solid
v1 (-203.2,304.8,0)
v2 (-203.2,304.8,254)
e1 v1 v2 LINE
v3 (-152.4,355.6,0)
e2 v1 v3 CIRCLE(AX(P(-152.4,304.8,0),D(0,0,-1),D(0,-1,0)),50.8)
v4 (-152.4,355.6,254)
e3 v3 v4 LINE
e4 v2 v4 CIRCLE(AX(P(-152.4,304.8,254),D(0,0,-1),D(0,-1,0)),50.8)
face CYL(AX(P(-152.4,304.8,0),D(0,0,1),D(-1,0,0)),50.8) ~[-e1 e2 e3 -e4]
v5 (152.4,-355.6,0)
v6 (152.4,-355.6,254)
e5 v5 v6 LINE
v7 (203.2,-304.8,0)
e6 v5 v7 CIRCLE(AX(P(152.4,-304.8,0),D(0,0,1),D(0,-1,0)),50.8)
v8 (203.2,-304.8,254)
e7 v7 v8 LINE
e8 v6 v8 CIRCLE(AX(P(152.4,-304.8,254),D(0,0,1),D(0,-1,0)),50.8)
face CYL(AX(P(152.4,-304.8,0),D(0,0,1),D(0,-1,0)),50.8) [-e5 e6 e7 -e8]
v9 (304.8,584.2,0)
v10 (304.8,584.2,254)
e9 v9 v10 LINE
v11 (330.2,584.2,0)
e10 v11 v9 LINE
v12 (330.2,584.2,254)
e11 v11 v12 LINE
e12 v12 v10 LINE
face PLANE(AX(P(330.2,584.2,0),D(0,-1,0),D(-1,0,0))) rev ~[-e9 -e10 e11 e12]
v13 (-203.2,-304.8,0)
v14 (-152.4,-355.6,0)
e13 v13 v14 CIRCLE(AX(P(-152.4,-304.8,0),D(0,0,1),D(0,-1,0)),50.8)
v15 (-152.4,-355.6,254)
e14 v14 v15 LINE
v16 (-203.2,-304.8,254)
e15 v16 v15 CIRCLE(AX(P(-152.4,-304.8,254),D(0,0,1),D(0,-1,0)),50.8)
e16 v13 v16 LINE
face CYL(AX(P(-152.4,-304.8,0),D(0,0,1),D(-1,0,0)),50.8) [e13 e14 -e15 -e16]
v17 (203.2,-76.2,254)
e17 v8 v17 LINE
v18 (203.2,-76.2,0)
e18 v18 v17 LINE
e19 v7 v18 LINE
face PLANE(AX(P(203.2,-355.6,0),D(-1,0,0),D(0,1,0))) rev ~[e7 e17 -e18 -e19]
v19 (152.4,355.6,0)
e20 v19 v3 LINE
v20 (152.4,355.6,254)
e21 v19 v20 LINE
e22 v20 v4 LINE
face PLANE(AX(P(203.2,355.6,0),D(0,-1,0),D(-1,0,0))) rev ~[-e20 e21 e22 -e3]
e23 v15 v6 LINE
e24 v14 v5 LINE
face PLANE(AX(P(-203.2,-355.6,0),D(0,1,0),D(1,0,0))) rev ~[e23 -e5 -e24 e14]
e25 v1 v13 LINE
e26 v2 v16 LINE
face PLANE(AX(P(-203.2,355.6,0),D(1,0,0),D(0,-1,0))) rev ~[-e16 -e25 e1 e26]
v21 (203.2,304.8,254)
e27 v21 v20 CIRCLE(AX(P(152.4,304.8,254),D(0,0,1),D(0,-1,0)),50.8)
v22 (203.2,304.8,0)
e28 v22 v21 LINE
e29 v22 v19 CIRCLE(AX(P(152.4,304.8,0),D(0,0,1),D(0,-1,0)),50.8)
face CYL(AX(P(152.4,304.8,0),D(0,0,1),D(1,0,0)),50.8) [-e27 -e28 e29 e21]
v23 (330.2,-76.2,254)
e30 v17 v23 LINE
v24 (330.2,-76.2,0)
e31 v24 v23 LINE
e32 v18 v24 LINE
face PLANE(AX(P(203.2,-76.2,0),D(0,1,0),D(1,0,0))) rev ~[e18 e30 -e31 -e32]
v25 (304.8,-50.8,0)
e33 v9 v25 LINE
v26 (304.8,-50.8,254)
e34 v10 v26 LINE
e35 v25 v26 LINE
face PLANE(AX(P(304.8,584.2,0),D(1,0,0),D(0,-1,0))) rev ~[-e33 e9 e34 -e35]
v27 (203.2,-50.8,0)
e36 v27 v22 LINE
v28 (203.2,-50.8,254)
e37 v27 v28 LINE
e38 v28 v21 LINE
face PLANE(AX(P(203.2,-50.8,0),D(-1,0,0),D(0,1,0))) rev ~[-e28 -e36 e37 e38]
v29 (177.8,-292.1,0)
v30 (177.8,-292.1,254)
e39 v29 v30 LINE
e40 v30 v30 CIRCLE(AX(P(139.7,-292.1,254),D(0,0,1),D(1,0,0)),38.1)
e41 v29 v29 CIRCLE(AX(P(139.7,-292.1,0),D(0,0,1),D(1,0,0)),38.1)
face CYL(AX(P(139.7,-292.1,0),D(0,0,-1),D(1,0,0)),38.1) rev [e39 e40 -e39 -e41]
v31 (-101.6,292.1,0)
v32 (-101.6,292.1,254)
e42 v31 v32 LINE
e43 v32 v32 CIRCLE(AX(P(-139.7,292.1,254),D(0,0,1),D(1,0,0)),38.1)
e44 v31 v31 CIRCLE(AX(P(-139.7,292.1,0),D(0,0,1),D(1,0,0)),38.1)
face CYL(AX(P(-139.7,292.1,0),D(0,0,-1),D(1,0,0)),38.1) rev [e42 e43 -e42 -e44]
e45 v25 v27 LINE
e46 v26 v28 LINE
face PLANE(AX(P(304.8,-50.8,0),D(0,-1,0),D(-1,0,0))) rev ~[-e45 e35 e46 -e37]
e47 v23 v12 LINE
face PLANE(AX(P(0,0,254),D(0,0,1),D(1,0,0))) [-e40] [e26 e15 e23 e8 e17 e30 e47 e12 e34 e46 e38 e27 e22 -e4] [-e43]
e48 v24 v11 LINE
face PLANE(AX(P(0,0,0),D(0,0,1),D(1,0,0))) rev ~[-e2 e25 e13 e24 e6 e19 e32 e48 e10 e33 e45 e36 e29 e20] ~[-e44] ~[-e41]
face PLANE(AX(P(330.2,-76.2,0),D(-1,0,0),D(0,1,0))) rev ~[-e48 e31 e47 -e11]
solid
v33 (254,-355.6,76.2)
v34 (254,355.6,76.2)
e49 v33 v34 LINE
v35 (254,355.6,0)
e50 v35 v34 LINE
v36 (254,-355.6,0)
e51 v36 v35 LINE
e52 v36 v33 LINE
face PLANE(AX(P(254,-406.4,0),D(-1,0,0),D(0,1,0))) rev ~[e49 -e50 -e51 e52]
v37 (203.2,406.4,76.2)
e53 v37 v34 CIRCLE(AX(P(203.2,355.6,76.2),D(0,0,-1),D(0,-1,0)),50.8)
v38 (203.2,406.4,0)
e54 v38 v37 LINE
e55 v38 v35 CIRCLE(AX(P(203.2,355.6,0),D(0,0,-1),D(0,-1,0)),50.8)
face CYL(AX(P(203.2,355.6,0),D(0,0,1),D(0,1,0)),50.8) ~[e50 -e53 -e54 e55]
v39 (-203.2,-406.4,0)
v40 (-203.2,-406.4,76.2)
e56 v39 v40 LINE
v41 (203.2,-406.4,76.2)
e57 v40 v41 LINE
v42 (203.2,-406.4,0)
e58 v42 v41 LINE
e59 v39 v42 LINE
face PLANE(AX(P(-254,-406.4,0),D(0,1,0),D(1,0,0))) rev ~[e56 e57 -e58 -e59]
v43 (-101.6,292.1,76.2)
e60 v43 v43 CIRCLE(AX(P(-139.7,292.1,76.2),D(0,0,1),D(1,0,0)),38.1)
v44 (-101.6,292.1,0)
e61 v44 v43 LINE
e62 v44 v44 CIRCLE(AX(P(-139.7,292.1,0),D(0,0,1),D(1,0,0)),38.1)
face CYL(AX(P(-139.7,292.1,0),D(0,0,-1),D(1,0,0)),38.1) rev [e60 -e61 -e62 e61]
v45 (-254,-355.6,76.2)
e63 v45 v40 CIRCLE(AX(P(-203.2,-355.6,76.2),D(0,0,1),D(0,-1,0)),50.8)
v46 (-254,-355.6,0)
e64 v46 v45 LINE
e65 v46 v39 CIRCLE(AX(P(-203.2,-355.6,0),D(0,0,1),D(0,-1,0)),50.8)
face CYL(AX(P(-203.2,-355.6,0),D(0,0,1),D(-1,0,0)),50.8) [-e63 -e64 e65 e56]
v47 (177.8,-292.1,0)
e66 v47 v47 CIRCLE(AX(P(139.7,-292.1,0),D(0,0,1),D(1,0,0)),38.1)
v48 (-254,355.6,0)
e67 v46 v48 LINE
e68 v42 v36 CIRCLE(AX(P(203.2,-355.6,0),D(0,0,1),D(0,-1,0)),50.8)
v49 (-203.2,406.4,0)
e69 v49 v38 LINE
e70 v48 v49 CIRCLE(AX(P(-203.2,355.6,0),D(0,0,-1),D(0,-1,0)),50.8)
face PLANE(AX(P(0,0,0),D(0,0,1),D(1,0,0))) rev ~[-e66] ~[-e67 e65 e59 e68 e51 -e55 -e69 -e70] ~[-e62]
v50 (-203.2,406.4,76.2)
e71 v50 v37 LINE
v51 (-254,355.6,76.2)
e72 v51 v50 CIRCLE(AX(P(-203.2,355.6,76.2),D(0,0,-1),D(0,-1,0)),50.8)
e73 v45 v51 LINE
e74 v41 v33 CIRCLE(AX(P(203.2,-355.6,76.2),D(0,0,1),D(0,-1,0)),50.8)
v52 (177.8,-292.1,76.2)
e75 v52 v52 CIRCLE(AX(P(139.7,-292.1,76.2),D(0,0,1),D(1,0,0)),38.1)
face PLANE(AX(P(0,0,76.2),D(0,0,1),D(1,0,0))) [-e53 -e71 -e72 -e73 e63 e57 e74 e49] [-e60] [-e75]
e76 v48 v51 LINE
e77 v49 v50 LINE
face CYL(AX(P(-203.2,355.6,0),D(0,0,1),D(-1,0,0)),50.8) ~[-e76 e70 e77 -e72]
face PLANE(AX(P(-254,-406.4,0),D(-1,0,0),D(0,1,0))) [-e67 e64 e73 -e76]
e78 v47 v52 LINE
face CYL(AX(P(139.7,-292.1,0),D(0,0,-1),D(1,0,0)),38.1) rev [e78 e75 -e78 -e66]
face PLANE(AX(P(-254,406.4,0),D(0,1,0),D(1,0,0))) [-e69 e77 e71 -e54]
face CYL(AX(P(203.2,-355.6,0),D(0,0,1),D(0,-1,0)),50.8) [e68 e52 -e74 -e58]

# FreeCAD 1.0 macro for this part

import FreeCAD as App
import Part
import Sketcher
Q = App.Units.Quantity


def edges_at(feature, points):
    """Names of the edges that pass closest to the given points."""
    edges = feature.Shape.Edges
    near = lambda p: min(range(len(edges)), key=lambda i: edges[i].distToShape(Part.Vertex(*p))[0])
    return sorted({f"Edge{near(p) + 1}" for p in points})

doc = App.newDocument("Part")
body = doc.addObject("PartDesign::Body", "Body")

# Sketch on XY plane
sketch1 = doc.addObject("Sketcher::SketchObject", "Sketch")
body.addObject(sketch1)
sketch1.AttachmentSupport = (doc.XY_Plane, [""])
sketch1.MapMode = "FlatFace"
sketch1.addGeometry([
    Part.LineSegment(App.Vector(-203, 356, 0), App.Vector(-203, -356, 0)),  # 0
    Part.LineSegment(App.Vector(-203, -356, 0), App.Vector(203, -356, 0)),  # 1
    Part.LineSegment(App.Vector(203, -356, 0), App.Vector(203, -76, 0)),  # 2
    Part.LineSegment(App.Vector(203, -76, 0), App.Vector(330, -76, 0)),  # 3
    Part.LineSegment(App.Vector(330, -76, 0), App.Vector(330, 584, 0)),  # 4
    Part.LineSegment(App.Vector(330, 584, 0), App.Vector(305, 584, 0)),  # 5
    Part.LineSegment(App.Vector(305, 584, 0), App.Vector(305, -51, 0)),  # 6
    Part.LineSegment(App.Vector(305, -51, 0), App.Vector(203, -51, 0)),  # 7
    Part.LineSegment(App.Vector(203, -51, 0), App.Vector(203, 356, 0)),  # 8
    Part.LineSegment(App.Vector(203, 356, 0), App.Vector(-203, 356, 0)),  # 9
    Part.Circle(App.Vector(140, -292, 0), App.Vector(0, 0, 1), 38),  # 10
    Part.Circle(App.Vector(-140, 292, 0), App.Vector(0, 0, 1), 38),  # 11
], False)
sketch1.addConstraint([
    Sketcher.Constraint("Coincident", 0, 2, 1, 1),
    Sketcher.Constraint("Coincident", 1, 2, 2, 1),
    Sketcher.Constraint("Coincident", 2, 2, 3, 1),
    Sketcher.Constraint("Coincident", 3, 2, 4, 1),
    Sketcher.Constraint("Coincident", 4, 2, 5, 1),
    Sketcher.Constraint("Coincident", 5, 2, 6, 1),
    Sketcher.Constraint("Coincident", 6, 2, 7, 1),
    Sketcher.Constraint("Coincident", 7, 2, 8, 1),
    Sketcher.Constraint("Coincident", 8, 2, 9, 1),
    Sketcher.Constraint("Coincident", 9, 2, 0, 1),
    Sketcher.Constraint("Vertical", 0),
    Sketcher.Constraint("Horizontal", 1),
    Sketcher.Constraint("Vertical", 2),
    Sketcher.Constraint("Horizontal", 3),
    Sketcher.Constraint("Vertical", 4),
    Sketcher.Constraint("Horizontal", 5),
    Sketcher.Constraint("Vertical", 6),
    Sketcher.Constraint("Horizontal", 7),
    Sketcher.Constraint("Vertical", 8),
    Sketcher.Constraint("Horizontal", 9),
    Sketcher.Constraint("Equal", 10, 11),
    Sketcher.Constraint("Symmetric", 10, 3, 11, 3, -1, 1),
    Sketcher.Constraint("Symmetric", 0, 2, 8, 2, -1, 1),
    Sketcher.Constraint("Vertical", 2, 2, 7, 2),
    Sketcher.Constraint("Equal", 9, 8),
    Sketcher.Constraint("Diameter", 10, Q("3 in")),
    Sketcher.Constraint("DistanceX", 1, 1, 1, 2, Q("16 in")),
    Sketcher.Constraint("DistanceX", 3, 1, 3, 2, Q("5 in")),
    Sketcher.Constraint("DistanceX", 5, 2, 5, 1, Q("1 in")),
    Sketcher.Constraint("DistanceY", 0, 2, 0, 1, Q("28 in")),
    Sketcher.Constraint("DistanceY", 2, 1, 2, 2, Q("11 in")),
    Sketcher.Constraint("DistanceY", 4, 1, 4, 2, Q("26 in")),
    Sketcher.Constraint("DistanceX", 11, 3, 10, 3, Q("11 in")),
    Sketcher.Constraint("DistanceY", 10, 3, 11, 3, Q("23 in")),
])
pad1 = doc.addObject("PartDesign::Pad", "Pad")
body.addObject(pad1)
pad1.Profile = sketch1
pad1.Length = Q("10 in")
doc.recompute()

fillet = doc.addObject("PartDesign::Fillet", "Fillet")
body.addObject(fillet)
fillet.Base = (pad1, edges_at(pad1, [
    (-203.2, 355.6, 127),
    (203.2, 355.6, 127),
    (-203.2, -355.6, 127),
    (203.2, -355.6, 127),
]))
fillet.Radius = Q("2 in")
body2 = doc.addObject("PartDesign::Body", "Body001")

# Sketch on XY plane
sketch2 = doc.addObject("Sketcher::SketchObject", "Sketch001")
body2.addObject(sketch2)
sketch2.AttachmentSupport = (doc.getObject("XY_Plane001"), [""])
sketch2.MapMode = "FlatFace"
sketch2.addGeometry([
    Part.LineSegment(App.Vector(-254, 406, 0), App.Vector(-254, -406, 0)),  # 0
    Part.LineSegment(App.Vector(-254, -406, 0), App.Vector(254, -406, 0)),  # 1
    Part.LineSegment(App.Vector(254, -406, 0), App.Vector(254, 406, 0)),  # 2
    Part.LineSegment(App.Vector(254, 406, 0), App.Vector(-254, 406, 0)),  # 3
    Part.Circle(App.Vector(140, -292, 0), App.Vector(0, 0, 1), 38),  # 4
    Part.Circle(App.Vector(-140, 292, 0), App.Vector(0, 0, 1), 38),  # 5
], False)
sketch2.addConstraint([
    Sketcher.Constraint("Coincident", 0, 2, 1, 1),
    Sketcher.Constraint("Coincident", 1, 2, 2, 1),
    Sketcher.Constraint("Coincident", 2, 2, 3, 1),
    Sketcher.Constraint("Coincident", 3, 2, 0, 1),
    Sketcher.Constraint("Vertical", 0),
    Sketcher.Constraint("Horizontal", 1),
    Sketcher.Constraint("Vertical", 2),
    Sketcher.Constraint("Horizontal", 3),
    Sketcher.Constraint("Equal", 4, 5),
    Sketcher.Constraint("Symmetric", 4, 3, 5, 3, -1, 1),
    Sketcher.Constraint("Symmetric", 0, 2, 2, 2, -1, 1),
    Sketcher.Constraint("Diameter", 4, Q("3 in")),
    Sketcher.Constraint("DistanceX", 1, 1, 1, 2, Q("20 in")),
    Sketcher.Constraint("DistanceY", 0, 2, 0, 1, Q("32 in")),
    Sketcher.Constraint("DistanceX", 5, 3, 4, 3, Q("11 in")),
    Sketcher.Constraint("DistanceY", 4, 3, 5, 3, Q("23 in")),
])
pad2 = doc.addObject("PartDesign::Pad", "Pad001")
body2.addObject(pad2)
pad2.Profile = sketch2
pad2.Length = Q("3 in")
doc.recompute()

fillet2 = doc.addObject("PartDesign::Fillet", "Fillet001")
body2.addObject(fillet2)
fillet2.Base = (pad2, edges_at(pad2, [
    (254, -406.4, 38.1),
    (-254, -406.4, 38.1),
    (-254, 406.4, 38.1),
    (254, 406.4, 38.1),
]))
fillet2.Radius = Q("2 in")

doc.recompute()
